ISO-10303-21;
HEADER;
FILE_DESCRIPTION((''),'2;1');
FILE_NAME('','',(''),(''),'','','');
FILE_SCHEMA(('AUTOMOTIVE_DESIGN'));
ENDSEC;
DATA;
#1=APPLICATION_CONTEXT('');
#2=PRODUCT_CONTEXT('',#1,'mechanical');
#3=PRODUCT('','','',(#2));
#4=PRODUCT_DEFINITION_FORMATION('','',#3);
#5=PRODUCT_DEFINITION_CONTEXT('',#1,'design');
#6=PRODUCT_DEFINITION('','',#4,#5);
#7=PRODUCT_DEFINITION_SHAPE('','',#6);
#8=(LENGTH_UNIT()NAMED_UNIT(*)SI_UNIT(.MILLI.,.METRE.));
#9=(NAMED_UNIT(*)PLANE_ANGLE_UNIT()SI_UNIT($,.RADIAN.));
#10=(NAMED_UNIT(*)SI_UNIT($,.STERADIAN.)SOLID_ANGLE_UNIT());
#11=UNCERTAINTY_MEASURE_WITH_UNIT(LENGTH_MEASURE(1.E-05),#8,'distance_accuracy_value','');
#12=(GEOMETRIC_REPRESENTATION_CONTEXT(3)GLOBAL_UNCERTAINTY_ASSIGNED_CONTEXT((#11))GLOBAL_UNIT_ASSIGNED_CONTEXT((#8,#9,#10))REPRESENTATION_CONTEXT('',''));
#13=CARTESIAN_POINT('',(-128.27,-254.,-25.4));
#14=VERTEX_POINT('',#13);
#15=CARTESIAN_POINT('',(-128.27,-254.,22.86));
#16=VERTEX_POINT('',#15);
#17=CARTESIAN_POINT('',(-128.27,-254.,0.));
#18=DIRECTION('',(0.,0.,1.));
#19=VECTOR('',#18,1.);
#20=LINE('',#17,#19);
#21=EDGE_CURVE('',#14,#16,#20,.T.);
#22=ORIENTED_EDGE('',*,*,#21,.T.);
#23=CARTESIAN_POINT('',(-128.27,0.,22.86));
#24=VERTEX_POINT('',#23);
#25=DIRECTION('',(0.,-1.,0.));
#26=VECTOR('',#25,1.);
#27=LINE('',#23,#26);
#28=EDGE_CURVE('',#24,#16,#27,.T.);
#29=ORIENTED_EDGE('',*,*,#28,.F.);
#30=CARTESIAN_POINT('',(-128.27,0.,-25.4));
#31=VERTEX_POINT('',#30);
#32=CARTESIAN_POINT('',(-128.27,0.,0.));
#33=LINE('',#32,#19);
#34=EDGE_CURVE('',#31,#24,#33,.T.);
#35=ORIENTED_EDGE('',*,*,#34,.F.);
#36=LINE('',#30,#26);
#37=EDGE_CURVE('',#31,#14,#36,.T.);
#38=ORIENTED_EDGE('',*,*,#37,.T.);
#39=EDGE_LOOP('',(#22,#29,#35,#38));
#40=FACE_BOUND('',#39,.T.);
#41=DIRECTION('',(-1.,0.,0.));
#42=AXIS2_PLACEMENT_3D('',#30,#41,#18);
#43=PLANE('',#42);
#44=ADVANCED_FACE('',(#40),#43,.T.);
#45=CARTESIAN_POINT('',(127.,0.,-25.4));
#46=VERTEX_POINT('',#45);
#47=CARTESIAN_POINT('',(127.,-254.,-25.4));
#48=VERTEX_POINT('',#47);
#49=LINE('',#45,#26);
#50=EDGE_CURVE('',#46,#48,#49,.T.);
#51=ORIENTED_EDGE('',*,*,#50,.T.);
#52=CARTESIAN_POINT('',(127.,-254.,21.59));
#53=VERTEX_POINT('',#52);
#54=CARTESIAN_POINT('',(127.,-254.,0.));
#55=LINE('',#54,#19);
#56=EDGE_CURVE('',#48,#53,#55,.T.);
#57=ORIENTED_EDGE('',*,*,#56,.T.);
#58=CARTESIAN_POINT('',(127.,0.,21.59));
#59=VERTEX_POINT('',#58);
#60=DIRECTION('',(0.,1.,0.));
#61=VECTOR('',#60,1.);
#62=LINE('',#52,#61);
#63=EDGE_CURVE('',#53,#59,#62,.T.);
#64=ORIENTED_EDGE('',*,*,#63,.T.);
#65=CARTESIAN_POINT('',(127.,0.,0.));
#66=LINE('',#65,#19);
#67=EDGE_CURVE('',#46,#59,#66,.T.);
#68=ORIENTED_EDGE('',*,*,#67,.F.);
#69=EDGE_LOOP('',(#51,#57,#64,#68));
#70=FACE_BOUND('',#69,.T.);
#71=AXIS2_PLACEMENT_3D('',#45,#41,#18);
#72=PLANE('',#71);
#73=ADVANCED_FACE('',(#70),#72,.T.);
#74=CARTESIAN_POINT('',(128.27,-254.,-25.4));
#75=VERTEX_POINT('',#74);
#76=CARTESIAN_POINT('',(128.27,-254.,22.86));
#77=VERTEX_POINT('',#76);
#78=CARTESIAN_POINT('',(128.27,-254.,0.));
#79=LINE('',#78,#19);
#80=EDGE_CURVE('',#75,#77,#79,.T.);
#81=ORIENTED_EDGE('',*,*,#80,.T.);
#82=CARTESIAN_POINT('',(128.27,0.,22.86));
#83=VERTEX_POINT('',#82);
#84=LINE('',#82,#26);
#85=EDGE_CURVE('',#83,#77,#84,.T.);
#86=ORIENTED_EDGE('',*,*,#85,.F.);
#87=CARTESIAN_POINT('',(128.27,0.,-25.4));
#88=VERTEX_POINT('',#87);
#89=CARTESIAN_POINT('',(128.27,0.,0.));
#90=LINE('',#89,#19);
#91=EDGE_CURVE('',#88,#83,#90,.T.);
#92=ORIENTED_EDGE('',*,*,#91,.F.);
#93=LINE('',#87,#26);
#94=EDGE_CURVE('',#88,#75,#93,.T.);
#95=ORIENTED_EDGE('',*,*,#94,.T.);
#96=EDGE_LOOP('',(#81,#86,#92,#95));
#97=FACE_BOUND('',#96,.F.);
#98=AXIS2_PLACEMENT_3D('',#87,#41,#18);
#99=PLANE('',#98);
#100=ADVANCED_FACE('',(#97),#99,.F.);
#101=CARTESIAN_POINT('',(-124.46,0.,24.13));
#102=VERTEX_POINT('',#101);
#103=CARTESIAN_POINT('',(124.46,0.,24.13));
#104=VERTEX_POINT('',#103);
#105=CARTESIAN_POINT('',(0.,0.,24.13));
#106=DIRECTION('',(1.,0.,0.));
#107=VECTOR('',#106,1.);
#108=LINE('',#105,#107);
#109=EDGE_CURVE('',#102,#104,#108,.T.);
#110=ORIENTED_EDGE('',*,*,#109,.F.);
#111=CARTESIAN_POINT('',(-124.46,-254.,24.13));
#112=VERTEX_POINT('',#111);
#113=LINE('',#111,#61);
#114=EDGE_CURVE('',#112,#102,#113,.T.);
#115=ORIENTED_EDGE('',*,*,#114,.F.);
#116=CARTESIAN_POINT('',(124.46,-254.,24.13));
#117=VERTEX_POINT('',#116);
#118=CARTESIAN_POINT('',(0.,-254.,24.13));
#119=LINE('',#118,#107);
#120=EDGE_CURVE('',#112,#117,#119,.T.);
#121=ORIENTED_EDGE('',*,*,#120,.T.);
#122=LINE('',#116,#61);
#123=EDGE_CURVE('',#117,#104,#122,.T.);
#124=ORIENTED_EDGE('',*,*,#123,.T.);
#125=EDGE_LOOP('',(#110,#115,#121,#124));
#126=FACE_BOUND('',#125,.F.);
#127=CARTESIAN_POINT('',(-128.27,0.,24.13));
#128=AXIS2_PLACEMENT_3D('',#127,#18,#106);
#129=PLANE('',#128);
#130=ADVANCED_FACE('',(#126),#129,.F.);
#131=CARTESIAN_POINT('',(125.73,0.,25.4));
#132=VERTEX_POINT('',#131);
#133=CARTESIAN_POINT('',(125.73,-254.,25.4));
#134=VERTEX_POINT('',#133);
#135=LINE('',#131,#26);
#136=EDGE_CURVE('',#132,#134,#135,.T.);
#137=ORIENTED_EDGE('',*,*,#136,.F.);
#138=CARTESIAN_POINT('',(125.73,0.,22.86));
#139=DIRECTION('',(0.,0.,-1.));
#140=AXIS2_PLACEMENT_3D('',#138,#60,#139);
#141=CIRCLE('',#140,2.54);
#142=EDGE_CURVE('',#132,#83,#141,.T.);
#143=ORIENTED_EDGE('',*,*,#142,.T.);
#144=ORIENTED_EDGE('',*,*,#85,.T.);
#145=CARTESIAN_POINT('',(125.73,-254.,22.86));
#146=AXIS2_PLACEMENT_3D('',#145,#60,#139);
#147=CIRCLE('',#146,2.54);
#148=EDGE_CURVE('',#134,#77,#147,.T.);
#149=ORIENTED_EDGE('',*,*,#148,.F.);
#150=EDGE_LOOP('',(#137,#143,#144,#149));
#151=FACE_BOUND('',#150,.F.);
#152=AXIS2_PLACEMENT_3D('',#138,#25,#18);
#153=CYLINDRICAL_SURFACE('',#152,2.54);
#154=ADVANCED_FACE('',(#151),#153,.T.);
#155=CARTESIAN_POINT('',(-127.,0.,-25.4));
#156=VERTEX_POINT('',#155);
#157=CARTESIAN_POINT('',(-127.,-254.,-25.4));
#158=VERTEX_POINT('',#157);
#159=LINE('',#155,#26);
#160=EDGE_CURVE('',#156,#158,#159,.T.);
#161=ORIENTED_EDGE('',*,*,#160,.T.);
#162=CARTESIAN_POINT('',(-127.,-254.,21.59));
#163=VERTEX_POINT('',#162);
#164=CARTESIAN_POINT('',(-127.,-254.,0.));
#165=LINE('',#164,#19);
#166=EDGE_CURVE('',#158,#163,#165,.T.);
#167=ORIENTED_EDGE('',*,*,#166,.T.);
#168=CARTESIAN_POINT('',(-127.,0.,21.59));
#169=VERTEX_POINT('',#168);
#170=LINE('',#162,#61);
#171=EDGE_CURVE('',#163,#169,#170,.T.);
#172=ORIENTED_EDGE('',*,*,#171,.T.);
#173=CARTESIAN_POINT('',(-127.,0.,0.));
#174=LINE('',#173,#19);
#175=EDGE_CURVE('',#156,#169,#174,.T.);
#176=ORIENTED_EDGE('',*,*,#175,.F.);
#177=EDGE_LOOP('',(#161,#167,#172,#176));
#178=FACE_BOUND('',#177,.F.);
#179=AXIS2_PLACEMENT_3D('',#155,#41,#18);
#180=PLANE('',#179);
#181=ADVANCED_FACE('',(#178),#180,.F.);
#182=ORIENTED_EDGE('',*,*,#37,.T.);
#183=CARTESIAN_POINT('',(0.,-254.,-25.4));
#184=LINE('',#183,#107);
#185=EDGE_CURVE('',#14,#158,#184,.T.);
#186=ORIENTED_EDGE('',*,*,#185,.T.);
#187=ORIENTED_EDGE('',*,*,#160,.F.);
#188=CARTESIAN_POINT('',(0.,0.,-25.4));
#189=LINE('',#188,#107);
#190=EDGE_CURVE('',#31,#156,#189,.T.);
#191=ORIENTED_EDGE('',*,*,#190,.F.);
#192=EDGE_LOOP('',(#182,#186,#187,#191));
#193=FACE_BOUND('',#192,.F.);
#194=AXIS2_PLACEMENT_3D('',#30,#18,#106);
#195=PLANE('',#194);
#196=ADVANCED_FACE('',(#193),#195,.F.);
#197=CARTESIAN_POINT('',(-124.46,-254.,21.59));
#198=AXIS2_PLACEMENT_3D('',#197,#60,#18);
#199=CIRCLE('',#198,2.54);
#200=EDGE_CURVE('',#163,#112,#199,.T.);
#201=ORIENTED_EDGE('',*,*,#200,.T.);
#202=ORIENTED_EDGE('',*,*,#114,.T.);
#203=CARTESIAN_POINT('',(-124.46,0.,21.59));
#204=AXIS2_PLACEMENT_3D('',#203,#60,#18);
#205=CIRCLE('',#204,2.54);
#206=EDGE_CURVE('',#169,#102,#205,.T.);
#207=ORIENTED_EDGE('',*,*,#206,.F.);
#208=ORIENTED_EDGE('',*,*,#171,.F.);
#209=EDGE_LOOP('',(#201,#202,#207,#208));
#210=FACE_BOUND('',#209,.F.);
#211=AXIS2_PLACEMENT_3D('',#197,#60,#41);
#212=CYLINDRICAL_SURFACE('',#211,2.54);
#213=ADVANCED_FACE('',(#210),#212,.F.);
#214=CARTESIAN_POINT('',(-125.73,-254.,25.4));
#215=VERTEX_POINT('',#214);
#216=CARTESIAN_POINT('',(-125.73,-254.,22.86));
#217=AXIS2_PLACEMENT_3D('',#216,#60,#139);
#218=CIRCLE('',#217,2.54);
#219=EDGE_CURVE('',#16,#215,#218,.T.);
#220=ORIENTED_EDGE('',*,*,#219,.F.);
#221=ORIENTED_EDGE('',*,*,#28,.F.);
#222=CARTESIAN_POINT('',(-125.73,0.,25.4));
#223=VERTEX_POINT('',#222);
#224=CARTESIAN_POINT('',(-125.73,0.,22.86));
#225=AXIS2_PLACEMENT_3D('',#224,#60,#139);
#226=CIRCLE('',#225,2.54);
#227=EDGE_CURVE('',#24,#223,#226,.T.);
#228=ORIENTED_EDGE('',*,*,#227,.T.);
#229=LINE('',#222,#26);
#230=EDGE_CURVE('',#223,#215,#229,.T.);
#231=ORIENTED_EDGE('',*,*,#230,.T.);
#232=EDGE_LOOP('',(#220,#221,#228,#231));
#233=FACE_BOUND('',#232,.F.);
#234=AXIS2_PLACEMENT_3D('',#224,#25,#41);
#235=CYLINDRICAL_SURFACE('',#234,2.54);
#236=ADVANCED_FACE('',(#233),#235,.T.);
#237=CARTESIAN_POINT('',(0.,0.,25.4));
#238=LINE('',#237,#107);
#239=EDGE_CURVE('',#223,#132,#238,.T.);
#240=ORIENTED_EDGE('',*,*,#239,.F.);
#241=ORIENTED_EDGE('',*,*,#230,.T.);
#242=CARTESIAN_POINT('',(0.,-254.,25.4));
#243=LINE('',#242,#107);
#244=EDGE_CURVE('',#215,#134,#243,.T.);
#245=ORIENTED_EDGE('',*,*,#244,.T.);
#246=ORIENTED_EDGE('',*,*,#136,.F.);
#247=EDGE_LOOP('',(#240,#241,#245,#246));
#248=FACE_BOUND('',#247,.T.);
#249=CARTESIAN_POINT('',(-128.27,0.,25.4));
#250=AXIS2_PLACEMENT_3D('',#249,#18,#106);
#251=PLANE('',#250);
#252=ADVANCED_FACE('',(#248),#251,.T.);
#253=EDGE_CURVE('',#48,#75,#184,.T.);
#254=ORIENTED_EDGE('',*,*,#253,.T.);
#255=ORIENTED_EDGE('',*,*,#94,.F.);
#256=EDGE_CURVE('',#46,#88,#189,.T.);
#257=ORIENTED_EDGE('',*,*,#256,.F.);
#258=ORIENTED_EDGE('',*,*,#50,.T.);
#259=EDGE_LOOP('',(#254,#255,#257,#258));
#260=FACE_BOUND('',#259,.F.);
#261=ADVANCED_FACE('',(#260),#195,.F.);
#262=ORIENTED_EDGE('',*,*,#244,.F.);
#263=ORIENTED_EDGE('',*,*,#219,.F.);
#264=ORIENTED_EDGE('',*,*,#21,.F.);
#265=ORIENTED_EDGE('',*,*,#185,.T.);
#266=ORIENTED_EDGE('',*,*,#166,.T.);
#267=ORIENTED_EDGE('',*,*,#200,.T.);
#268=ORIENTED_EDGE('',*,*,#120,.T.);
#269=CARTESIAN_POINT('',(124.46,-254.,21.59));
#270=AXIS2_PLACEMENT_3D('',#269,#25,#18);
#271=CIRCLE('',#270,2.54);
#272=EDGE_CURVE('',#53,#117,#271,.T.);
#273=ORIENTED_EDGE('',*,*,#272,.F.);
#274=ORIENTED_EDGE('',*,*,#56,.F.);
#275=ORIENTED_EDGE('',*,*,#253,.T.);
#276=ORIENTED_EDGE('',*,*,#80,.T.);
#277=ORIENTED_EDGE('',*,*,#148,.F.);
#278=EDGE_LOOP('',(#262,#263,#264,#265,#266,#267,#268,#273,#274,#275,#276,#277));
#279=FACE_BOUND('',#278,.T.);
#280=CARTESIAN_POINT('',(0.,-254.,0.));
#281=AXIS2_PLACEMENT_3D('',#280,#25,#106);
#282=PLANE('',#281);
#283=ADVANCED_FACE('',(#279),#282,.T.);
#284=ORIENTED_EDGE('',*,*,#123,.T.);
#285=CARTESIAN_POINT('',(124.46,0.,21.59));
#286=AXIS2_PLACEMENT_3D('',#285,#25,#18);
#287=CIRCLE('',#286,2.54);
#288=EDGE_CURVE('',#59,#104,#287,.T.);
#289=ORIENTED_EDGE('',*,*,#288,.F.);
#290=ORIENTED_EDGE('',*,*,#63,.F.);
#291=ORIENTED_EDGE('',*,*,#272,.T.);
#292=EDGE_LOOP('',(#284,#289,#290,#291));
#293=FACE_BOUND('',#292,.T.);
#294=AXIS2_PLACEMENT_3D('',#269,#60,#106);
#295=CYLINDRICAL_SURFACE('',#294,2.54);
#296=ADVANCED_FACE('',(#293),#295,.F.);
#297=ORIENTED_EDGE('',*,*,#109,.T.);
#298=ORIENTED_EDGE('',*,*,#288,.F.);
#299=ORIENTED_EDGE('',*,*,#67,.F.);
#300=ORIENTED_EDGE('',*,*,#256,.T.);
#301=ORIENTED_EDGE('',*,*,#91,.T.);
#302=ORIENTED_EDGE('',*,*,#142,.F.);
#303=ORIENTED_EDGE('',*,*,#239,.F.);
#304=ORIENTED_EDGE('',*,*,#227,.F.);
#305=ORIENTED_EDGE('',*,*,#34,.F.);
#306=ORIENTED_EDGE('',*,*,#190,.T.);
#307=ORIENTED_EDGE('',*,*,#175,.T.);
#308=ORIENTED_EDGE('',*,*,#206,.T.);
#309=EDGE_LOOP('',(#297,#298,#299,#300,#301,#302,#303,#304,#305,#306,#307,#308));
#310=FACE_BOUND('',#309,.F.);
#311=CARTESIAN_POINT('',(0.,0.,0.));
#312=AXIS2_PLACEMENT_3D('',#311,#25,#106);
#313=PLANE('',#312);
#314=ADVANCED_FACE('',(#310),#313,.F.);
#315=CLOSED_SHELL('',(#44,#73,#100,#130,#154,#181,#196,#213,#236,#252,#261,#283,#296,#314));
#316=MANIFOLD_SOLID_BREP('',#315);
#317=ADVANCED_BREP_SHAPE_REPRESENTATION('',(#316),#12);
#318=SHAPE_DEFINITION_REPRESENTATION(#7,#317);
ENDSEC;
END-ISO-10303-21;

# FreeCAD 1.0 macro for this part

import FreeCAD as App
import Part
import Sketcher
Q = App.Units.Quantity


def edges_at(feature, points):
    """Names of the edges that pass closest to the given points."""
    edges = feature.Shape.Edges
    near = lambda p: min(range(len(edges)), key=lambda i: edges[i].distToShape(Part.Vertex(*p))[0])
    return sorted({f"Edge{near(p) + 1}" for p in points})


def faces_at(feature, points):
    """Names of the faces that lie closest to the given points."""
    faces = feature.Shape.Faces
    near = lambda p: min(range(len(faces)), key=lambda i: faces[i].distToShape(Part.Vertex(*p))[0])
    return sorted({f"Face{near(p) + 1}" for p in points})


def add_polygon(sketch, points):
    """Adds a closed chain of lines whose ends are joined by coincident constraints."""
    first, n = sketch.GeometryCount, len(points)
    for a, b in zip(points, points[1:] + points[:1]):
        sketch.addGeometry(Part.LineSegment(App.Vector(*a, 0), App.Vector(*b, 0)), False)
    for i in range(n):
        sketch.addConstraint(Sketcher.Constraint("Coincident", first + i, 2, first + (i + 1) % n, 1))

doc = App.newDocument("Part")
body = doc.addObject("PartDesign::Body", "Body")

# Sketch on XZ plane
sketch1 = doc.addObject("Sketcher::SketchObject", "Sketch")
body.addObject(sketch1)
sketch1.AttachmentSupport = (doc.XZ_Plane, [""])
sketch1.MapMode = "FlatFace"
add_polygon(sketch1, [(-128, 25), (-128, -25), (128, -25), (128, 25)])  # lines 0-3
sketch1.addConstraint([
    Sketcher.Constraint("Vertical", 0),
    Sketcher.Constraint("Horizontal", 1),
    Sketcher.Constraint("Vertical", 2),
    Sketcher.Constraint("Horizontal", 3),
    Sketcher.Constraint("Symmetric", 0, 2, 2, 2, -1, 1),
    Sketcher.Constraint("DistanceY", 0, 2, 0, 1, Q("2 in")),
    Sketcher.Constraint("DistanceX", 1, 1, 1, 2, Q("10.1 in")),
])
pad1 = doc.addObject("PartDesign::Pad", "Pad")
body.addObject(pad1)
pad1.Profile = sketch1
pad1.Length = Q("10 in")
doc.recompute()

thickness = doc.addObject("PartDesign::Thickness", "Thickness")
body.addObject(thickness)
thickness.Base = (pad1, faces_at(pad1, [(0, -254, 0), (0, -127, -25.4), (0, 0, 0)]))
thickness.Value = Q("0.05 in")
thickness.Reversed = True
thickness.Join = "Arc"
doc.recompute()

fillet = doc.addObject("PartDesign::Fillet", "Fillet")
body.addObject(fillet)
fillet.Base = (thickness, edges_at(thickness, [
    (-127, -127, 24.13),
    (127, -127, 24.13),
    (128.27, -127, 25.4),
    (-128.27, -127, 25.4),
]))
fillet.Radius = Q("0.1 in")

doc.recompute()
